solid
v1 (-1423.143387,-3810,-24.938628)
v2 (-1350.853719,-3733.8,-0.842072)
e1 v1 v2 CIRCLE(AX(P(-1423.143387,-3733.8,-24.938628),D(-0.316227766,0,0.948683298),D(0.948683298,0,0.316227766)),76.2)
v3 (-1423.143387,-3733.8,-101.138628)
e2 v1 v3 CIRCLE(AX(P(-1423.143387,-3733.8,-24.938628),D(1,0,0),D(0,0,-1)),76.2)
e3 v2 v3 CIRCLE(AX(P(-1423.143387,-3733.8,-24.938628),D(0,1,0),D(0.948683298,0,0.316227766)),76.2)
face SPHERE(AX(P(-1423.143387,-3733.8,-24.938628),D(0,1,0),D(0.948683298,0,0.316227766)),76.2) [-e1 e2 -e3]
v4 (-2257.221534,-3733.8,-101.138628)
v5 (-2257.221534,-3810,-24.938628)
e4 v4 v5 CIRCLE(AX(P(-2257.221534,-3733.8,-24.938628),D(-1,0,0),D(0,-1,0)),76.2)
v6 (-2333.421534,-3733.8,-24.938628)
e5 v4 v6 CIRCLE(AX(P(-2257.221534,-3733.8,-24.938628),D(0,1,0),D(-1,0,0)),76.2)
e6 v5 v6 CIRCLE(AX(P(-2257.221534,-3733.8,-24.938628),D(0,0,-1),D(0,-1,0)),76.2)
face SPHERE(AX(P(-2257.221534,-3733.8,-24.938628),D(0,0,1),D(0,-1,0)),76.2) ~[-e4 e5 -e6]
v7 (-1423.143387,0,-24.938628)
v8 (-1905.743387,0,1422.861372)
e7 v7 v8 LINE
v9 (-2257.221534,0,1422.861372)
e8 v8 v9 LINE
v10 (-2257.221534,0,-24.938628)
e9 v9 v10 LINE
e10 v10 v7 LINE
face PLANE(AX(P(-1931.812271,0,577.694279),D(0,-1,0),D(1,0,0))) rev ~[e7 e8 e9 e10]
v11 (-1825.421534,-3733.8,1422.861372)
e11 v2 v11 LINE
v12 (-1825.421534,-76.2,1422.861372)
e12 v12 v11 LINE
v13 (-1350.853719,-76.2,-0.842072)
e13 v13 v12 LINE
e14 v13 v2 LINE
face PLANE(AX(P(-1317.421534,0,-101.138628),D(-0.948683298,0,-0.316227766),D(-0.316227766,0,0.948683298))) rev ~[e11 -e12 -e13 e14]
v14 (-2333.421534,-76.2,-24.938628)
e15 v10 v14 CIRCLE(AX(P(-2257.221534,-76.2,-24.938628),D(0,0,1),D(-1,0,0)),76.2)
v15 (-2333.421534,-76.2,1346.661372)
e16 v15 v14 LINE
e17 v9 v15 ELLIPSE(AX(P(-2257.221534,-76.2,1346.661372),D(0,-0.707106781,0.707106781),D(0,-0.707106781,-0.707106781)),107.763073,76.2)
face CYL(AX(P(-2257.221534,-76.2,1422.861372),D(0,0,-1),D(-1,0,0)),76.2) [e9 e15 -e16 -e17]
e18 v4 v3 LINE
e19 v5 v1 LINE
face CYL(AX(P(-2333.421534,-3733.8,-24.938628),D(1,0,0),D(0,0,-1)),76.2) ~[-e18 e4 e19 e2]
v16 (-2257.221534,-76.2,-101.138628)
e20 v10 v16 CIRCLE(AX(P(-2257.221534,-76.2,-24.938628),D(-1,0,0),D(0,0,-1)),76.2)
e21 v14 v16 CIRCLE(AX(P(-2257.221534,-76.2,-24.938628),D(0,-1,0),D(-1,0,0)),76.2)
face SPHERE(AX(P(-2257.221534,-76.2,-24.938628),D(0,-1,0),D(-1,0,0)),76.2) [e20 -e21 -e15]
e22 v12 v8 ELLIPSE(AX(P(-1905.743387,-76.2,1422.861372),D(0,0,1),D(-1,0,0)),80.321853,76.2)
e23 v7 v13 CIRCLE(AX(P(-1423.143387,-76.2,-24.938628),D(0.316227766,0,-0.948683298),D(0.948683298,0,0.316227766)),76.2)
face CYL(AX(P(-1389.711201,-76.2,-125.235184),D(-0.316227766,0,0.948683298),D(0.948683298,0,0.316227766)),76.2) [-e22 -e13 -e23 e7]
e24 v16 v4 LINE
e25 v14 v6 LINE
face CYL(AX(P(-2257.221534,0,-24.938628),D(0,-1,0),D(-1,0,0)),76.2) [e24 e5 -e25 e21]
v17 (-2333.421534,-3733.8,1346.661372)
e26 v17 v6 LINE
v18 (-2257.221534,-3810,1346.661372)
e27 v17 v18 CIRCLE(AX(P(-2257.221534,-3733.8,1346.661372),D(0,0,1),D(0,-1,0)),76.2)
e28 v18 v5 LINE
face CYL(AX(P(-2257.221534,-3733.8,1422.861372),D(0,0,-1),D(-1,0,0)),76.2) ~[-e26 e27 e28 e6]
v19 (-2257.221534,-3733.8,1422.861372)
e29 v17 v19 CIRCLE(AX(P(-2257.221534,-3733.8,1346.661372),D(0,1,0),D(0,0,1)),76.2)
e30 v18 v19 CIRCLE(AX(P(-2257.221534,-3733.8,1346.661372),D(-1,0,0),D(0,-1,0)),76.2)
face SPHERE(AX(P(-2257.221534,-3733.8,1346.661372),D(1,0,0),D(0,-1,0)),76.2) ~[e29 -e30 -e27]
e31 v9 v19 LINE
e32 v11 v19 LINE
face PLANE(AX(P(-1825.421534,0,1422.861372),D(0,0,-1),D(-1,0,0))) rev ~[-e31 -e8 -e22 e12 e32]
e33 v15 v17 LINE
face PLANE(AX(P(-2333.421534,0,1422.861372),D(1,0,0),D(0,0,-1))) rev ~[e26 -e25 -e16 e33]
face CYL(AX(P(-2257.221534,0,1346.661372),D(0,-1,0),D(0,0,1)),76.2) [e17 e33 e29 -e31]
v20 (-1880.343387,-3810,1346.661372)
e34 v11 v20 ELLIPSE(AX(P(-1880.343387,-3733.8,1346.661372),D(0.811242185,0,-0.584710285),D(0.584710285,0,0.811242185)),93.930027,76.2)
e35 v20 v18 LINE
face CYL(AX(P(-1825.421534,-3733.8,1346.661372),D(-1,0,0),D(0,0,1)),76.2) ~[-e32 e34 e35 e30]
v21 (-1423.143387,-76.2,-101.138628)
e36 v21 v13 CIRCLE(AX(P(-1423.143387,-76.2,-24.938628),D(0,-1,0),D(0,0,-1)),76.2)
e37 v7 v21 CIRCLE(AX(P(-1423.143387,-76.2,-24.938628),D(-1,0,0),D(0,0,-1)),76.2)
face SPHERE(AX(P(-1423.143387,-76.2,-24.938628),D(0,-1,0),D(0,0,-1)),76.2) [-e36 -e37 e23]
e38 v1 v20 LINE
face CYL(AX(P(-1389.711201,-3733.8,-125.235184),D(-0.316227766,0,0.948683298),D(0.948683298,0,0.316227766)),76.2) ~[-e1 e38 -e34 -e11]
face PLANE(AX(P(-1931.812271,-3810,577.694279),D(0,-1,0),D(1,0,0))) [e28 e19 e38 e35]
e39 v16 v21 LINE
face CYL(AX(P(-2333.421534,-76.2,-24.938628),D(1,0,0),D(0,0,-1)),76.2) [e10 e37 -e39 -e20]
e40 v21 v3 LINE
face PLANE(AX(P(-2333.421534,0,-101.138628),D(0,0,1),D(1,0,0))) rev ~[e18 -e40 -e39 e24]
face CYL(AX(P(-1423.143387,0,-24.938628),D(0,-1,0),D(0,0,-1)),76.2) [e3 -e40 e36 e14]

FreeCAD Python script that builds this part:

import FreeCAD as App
import Part
import Sketcher

V = App.Vector
Q = App.Units.Quantity


def edges_at(feature, points):
    """Names of the edges that pass closest to the given points."""
    edges = feature.Shape.Edges
    near = lambda p: min(range(len(edges)), key=lambda i: edges[i].distToShape(Part.Vertex(*p))[0])
    return sorted({f"Edge{near(p) + 1}" for p in points})


def add_polygon(sketch, points):
    """Adds a closed chain of lines whose ends are joined by coincident constraints."""
    first, n = sketch.GeometryCount, len(points)
    for a, b in zip(points, points[1:] + points[:1]):
        sketch.addGeometry(Part.LineSegment(App.Vector(*a, 0), App.Vector(*b, 0)), False)
    for i in range(n):
        sketch.addConstraint(Sketcher.Constraint("Coincident", first + i, 2, first + (i + 1) % n, 1))

doc = App.newDocument("Part")
body = doc.addObject("PartDesign::Body", "Body")

# Sketch on XZ plane
sketch1 = body.newObject("Sketcher::SketchObject", "Sketch")
sketch1.AttachmentSupport = (doc.getObject("XZ_Plane"), [""])
sketch1.MapMode = "FlatFace"
add_polygon(sketch1, [(-1825.421534, 1422.861372), (-2333.421534, 1422.861372), (-2333.421534, -101.138628), (-1317.421534, -101.138628)])  # lines 0-3
sketch1.addConstraint(Sketcher.Constraint("Horizontal", 0))
sketch1.addConstraint(Sketcher.Constraint("Vertical", 1))
sketch1.addConstraint(Sketcher.Constraint("Horizontal", 2))
sketch1.addConstraint(Sketcher.Constraint("DistanceX", 0, 2, 0, 1, Q("20 in")))
sketch1.addConstraint(Sketcher.Constraint("DistanceX", 2, 1, 2, 2, Q("40 in")))
sketch1.addConstraint(Sketcher.Constraint("DistanceY", 1, 2, 1, 1, Q("60 in")))
sketch1.addConstraint(Sketcher.Constraint("DistanceY", -1, 1, 0, 2, 1422.861372))
sketch1.addConstraint(Sketcher.Constraint("DistanceX", 0, 2, -1, 1, 2333.421534))
pad1 = body.newObject("PartDesign::Pad", "Pad")
pad1.Profile = sketch1
pad1.Length = Q("150 in")
doc.recompute()

fillet = body.newObject("PartDesign::Fillet", "Fillet")
fillet.Base = (pad1, edges_at(pad1, [
    (-1571.422, -3810, 660.861),
    (-1571.422, 0, 660.861),
    (-2079.422, -3810, 1422.861),
    (-2333.422, -3810, 660.861),
    (-1825.422, -3810, -101.139),
    (-2333.422, -1905, 1422.861),
    (-2333.422, -1905, -101.139),
    (-2333.422, 0, 660.861),
    (-1317.422, -1905, -101.139),
    (-1825.422, 0, -101.139),
]))
fillet.Radius = Q("3 in")

doc.recompute()
